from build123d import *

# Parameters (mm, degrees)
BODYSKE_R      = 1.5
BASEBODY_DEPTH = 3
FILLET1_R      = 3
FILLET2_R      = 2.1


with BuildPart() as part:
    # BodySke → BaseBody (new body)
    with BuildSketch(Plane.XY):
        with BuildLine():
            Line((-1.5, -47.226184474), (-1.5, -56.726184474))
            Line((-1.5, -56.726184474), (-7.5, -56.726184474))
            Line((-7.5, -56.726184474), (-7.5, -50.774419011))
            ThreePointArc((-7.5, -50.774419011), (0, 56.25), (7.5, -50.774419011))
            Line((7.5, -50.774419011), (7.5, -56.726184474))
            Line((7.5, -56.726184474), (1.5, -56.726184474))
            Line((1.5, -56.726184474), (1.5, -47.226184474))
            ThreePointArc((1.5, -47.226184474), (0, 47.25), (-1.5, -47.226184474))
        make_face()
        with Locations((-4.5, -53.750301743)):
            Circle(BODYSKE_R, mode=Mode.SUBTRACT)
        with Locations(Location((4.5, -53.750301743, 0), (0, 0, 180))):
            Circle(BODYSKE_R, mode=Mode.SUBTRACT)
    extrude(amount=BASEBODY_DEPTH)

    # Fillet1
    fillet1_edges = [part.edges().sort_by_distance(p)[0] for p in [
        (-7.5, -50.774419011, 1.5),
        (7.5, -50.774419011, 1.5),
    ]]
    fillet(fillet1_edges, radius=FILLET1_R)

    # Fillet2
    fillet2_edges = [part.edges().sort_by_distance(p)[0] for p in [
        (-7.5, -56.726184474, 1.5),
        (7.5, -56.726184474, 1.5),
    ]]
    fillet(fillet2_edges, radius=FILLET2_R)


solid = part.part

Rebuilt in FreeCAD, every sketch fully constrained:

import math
import FreeCAD as App
import Part
import Sketcher


def edges_at(feature, points):
    """Names of the edges that pass closest to the given points."""
    edges = feature.Shape.Edges
    near = lambda p: min(range(len(edges)), key=lambda i: edges[i].distToShape(Part.Vertex(*p))[0])
    return sorted({f"Edge{near(p) + 1}" for p in points})

doc = App.newDocument("Part")
body = doc.addObject("PartDesign::Body", "Body")

sketch1 = body.newObject("Sketcher::SketchObject", "Sketch")
sketch1.AttachmentSupport = (doc.getObject("XY_Plane"), [""])
sketch1.MapMode = "FlatFace"
sketch1.addGeometry([
    Part.LineSegment(App.Vector(-1.5, -56.7, 0), App.Vector(-1.5, -47.2, 0)),
    Part.ArcOfCircle(Part.Circle(App.Vector(0, 0, 0), App.Vector(0, 0, 1), 47.2), math.radians(-88), math.radians(268)),
    Part.LineSegment(App.Vector(1.5, -47.2, 0), App.Vector(1.5, -56.7, 0)),
    Part.LineSegment(App.Vector(1.5, -56.7, 0), App.Vector(7.5, -56.7, 0)),
    Part.LineSegment(App.Vector(7.5, -56.7, 0), App.Vector(7.5, -50.8, 0)),
    Part.ArcOfCircle(Part.Circle(App.Vector(0, 2.5, 0), App.Vector(0, 0, 1), 53.8), math.radians(-82), math.radians(262)),
    Part.LineSegment(App.Vector(-7.5, -50.8, 0), App.Vector(-7.5, -56.7, 0)),
    Part.LineSegment(App.Vector(-7.5, -56.7, 0), App.Vector(-1.5, -56.7, 0)),
    Part.Circle(App.Vector(4.5, -53.8, 0), App.Vector(0, 0, 1), 1.5),
    Part.Circle(App.Vector(-4.5, -53.8, 0), App.Vector(0, 0, 1), 1.5),
], False)
sketch1.addConstraint([
    Sketcher.Constraint("Coincident", 0, 2, 1, 2),
    Sketcher.Constraint("Coincident", 1, 1, 2, 1),
    Sketcher.Constraint("Coincident", 2, 2, 3, 1),
    Sketcher.Constraint("Coincident", 3, 2, 4, 1),
    Sketcher.Constraint("Coincident", 4, 2, 5, 1),
    Sketcher.Constraint("Coincident", 5, 2, 6, 1),
    Sketcher.Constraint("Coincident", 6, 2, 7, 1),
    Sketcher.Constraint("Coincident", 7, 2, 0, 1),
    Sketcher.Constraint("Vertical", 0),
    Sketcher.Constraint("Vertical", 2),
    Sketcher.Constraint("Horizontal", 3),
    Sketcher.Constraint("Vertical", 4),
    Sketcher.Constraint("Vertical", 6),
    Sketcher.Constraint("Horizontal", 7),
    Sketcher.Constraint("Coincident", 1, 3, -1, 1),
    Sketcher.Constraint("Equal", 8, 9),
    Sketcher.Constraint("Symmetric", 8, 3, 9, 3, -2),
    Sketcher.Constraint("Symmetric", 4, 2, 5, 2, -2),
    Sketcher.Constraint("Symmetric", 2, 2, 7, 2, -2),
    Sketcher.Constraint("Diameter", 8, 3.0),
    Sketcher.Constraint("DistanceX", 3, 1, 3, 2, 6.0),
    Sketcher.Constraint("Radius", 1, 47.25),
    Sketcher.Constraint("DistanceY", 0, 1, 0, 2, 9.5),
    Sketcher.Constraint("Radius", 5, 53.775),
    Sketcher.Constraint("DistanceX", 9, 3, 8, 3, 9.0),
    Sketcher.Constraint("DistanceX", 9, 3, 0, 2, 3.0),
    Sketcher.Constraint("DistanceY", -1, 1, 5, 3, 2.475),
    Sketcher.Constraint("DistanceY", 8, 3, -1, 1, 53.750302),
])
pad1 = body.newObject("PartDesign::Pad", "Pad")
pad1.Profile = sketch1
pad1.Length = 3
doc.recompute()

fillet = body.newObject("PartDesign::Fillet", "Fillet")
fillet.Base = (pad1, edges_at(pad1, [(-7.5, -50.774, 1.5), (7.5, -50.774, 1.5)]))
fillet.Radius = 3
doc.recompute()

fillet2 = body.newObject("PartDesign::Fillet", "Fillet001")
fillet2.Base = (fillet, edges_at(fillet, [(-7.5, -56.726, 1.5), (7.5, -56.726, 1.5)]))
fillet2.Radius = 2.1

doc.recompute()
